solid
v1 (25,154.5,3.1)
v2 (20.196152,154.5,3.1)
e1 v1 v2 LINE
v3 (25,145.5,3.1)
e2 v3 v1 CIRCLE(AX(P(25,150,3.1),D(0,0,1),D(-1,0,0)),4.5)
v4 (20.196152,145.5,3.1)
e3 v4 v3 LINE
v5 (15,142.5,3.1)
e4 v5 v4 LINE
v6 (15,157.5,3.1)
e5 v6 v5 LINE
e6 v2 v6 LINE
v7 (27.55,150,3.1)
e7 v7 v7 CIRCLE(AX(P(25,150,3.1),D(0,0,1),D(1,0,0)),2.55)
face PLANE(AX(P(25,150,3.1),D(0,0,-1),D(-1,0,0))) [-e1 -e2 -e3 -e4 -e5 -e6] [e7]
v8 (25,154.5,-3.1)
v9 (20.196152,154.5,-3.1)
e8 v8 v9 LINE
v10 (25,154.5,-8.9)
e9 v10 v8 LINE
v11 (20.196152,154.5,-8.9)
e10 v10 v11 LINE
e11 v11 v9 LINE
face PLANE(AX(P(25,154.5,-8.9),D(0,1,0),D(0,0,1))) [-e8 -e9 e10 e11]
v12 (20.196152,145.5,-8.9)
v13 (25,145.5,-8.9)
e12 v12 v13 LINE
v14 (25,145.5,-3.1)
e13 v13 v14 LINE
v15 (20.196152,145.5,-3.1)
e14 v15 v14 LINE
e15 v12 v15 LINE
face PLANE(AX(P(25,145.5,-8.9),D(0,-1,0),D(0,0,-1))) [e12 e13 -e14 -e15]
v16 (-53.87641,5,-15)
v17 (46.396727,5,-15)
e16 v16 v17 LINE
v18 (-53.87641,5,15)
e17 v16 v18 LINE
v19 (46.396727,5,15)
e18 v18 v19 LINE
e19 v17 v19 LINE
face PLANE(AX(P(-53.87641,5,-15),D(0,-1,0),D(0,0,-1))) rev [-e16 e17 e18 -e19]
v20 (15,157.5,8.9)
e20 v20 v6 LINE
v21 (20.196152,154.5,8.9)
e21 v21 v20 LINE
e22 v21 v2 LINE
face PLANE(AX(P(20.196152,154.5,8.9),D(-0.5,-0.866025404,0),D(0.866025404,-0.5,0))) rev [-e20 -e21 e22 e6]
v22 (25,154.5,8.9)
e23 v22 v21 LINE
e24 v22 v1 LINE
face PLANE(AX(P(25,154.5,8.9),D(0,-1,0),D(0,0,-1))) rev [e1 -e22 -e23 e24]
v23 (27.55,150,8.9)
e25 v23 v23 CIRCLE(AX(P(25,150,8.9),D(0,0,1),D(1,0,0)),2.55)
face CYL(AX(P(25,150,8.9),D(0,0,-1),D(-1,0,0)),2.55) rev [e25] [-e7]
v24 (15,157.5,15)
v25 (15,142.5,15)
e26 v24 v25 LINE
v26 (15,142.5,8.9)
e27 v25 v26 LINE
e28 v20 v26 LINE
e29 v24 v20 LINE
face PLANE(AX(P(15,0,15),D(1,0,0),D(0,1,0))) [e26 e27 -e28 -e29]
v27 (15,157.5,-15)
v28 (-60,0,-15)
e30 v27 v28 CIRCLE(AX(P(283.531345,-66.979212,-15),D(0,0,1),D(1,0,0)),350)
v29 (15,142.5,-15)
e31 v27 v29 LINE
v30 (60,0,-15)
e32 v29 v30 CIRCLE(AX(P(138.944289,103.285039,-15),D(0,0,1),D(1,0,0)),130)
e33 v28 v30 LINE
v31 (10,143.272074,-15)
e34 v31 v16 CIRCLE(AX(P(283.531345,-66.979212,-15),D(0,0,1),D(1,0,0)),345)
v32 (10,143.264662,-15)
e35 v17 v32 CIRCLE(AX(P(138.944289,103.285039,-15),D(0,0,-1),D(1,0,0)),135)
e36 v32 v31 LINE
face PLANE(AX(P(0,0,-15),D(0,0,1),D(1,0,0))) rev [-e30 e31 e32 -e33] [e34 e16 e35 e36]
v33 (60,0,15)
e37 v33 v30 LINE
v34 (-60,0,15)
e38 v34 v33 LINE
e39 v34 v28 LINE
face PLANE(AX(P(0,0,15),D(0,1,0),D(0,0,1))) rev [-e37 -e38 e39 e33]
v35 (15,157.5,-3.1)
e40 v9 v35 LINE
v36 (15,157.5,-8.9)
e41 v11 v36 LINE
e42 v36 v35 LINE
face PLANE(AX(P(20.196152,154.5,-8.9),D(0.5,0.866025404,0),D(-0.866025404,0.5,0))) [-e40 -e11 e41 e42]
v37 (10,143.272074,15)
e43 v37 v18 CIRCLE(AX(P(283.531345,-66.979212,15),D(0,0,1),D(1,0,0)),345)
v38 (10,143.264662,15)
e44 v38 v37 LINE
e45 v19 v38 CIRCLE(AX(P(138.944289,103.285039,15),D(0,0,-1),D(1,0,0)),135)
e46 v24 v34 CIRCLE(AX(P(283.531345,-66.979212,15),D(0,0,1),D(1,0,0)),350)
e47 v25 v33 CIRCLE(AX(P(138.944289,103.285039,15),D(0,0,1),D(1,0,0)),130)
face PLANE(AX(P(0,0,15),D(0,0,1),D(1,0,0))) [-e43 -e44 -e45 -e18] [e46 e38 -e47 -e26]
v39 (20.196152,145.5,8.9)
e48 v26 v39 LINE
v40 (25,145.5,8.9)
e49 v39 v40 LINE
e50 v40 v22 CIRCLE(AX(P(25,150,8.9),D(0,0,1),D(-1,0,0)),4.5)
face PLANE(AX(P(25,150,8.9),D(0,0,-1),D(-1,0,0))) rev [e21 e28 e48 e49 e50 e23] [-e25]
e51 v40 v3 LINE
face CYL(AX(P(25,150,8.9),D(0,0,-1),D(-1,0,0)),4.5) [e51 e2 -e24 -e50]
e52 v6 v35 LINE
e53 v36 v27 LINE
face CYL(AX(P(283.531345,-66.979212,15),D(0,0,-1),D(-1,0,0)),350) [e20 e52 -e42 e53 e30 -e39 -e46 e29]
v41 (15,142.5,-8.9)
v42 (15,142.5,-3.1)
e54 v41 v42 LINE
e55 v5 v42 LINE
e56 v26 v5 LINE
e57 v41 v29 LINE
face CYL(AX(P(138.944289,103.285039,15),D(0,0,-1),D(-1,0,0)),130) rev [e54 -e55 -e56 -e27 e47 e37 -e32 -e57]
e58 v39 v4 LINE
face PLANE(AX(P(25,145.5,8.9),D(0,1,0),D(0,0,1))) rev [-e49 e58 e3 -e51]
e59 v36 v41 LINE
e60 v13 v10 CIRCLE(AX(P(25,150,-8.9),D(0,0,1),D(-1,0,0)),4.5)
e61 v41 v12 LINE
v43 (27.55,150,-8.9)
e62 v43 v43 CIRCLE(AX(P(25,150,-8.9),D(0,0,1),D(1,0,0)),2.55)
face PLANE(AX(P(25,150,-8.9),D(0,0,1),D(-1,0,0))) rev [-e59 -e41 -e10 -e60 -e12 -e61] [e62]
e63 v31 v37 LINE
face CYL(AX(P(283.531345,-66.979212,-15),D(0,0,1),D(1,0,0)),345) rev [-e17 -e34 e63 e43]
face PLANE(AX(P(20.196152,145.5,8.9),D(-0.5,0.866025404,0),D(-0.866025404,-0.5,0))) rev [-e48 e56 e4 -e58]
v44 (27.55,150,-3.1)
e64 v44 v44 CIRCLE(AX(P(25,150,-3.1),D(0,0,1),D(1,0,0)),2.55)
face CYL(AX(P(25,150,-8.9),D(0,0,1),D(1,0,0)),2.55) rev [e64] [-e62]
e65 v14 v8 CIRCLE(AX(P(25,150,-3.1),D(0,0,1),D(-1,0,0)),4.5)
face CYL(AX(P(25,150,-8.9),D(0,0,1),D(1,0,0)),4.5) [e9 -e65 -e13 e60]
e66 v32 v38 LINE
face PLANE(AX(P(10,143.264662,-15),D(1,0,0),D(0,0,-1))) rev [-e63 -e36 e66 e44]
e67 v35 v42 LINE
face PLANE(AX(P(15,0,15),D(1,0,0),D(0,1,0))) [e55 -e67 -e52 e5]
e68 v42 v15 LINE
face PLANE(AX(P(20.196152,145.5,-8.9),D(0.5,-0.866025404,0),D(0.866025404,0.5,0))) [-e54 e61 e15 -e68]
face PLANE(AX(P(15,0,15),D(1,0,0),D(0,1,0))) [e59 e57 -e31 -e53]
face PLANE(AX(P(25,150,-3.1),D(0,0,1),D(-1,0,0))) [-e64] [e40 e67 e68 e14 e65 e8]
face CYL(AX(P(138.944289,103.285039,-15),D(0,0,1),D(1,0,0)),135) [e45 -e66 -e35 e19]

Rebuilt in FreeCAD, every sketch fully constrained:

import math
import FreeCAD as App
import Part
import Sketcher
from FreeCAD import Vector
Q = App.Units.Quantity

doc = App.newDocument("Part")
body = doc.addObject("PartDesign::Body", "Body")

# Sketch on XY plane
sketch1 = doc.addObject("Sketcher::SketchObject", "Sketch")
body.addObject(sketch1)
sketch1.AttachmentSupport = (doc.XY_Plane, [""])
sketch1.MapMode = "FlatFace"
sketch1.addGeometry(Part.LineSegment(Vector(-60, 0, 0), Vector(60, 0, 0)), False)
sketch1.addGeometry(Part.ArcOfCircle(Part.Circle(Vector(139, 103, 0), Vector(0, 0, 1), 130), math.radians(162), math.radians(233)), False)
sketch1.addGeometry(Part.LineSegment(Vector(15, 142, 0), Vector(15, 158, 0)), False)
sketch1.addGeometry(Part.ArcOfCircle(Part.Circle(Vector(284, -67, 0), Vector(0, 0, 1), 350), math.radians(140), math.radians(169)), False)
sketch1.addConstraint(Sketcher.Constraint("Coincident", 0, 2, 1, 2))
sketch1.addConstraint(Sketcher.Constraint("Coincident", 1, 1, 2, 1))
sketch1.addConstraint(Sketcher.Constraint("Coincident", 2, 2, 3, 1))
sketch1.addConstraint(Sketcher.Constraint("Coincident", 3, 2, 0, 1))
sketch1.addConstraint(Sketcher.Constraint("Horizontal", 0))
sketch1.addConstraint(Sketcher.Constraint("Vertical", 2))
sketch1.addConstraint(Sketcher.Constraint("Symmetric", 0, 2, 3, 2, -1, 1))
sketch1.addConstraint(Sketcher.Constraint("Radius", 1, 130.0))
sketch1.addConstraint(Sketcher.Constraint("Radius", 3, 350.0))
sketch1.addConstraint(Sketcher.Constraint("DistanceX", 0, 1, 0, 2, 120.0))
sketch1.addConstraint(Sketcher.Constraint("DistanceY", 2, 1, 2, 2, 15.0))
sketch1.addConstraint(Sketcher.Constraint("DistanceX", -1, 1, 1, 1, 15.0))
sketch1.addConstraint(Sketcher.Constraint("DistanceY", -1, 1, 1, 1, 142.5))
pad1 = doc.addObject("PartDesign::Pad", "Pad")
body.addObject(pad1)
pad1.Profile = sketch1
pad1.Length = 30
pad1.Midplane = True

# Sketch on XY plane
sketch2 = doc.addObject("Sketcher::SketchObject", "Sketch001")
body.addObject(sketch2)
sketch2.AttachmentSupport = (doc.XY_Plane, [""])
sketch2.MapMode = "FlatFace"
sketch2.AttachmentOffset = App.Placement(Vector(0, 0, 15), App.Rotation())
sketch2.addGeometry(Part.LineSegment(Vector(10, 143.265, 0), Vector(10, 143.272, 0)), False)
sketch2.addGeometry(Part.ArcOfCircle(Part.Circle(Vector(283.531, -66.979, 0), Vector(0, 0, 1), 345), math.radians(142), math.radians(168)), False)
sketch2.addGeometry(Part.LineSegment(Vector(-53.876, 5, 0), Vector(46.397, 5, 0)), False)
sketch2.addGeometry(Part.ArcOfCircle(Part.Circle(Vector(138.944, 103.285, 0), Vector(0, 0, 1), 135), math.radians(163), math.radians(227)), False)
sketch2.addConstraint(Sketcher.Constraint("Coincident", 0, 2, 1, 1))
sketch2.addConstraint(Sketcher.Constraint("Coincident", 1, 2, 2, 1))
sketch2.addConstraint(Sketcher.Constraint("Coincident", 2, 2, 3, 2))
sketch2.addConstraint(Sketcher.Constraint("Coincident", 3, 1, 0, 1))
sketch2.addConstraint(Sketcher.Constraint("Vertical", 0))
sketch2.addConstraint(Sketcher.Constraint("Horizontal", 2))
sketch2.addConstraint(Sketcher.Constraint("Radius", 1, 345.0))
sketch2.addConstraint(Sketcher.Constraint("Radius", 3, 135.0))
sketch2.addConstraint(Sketcher.Constraint("DistanceX", -1, 1, 0, 2, 10.0))
sketch2.addConstraint(Sketcher.Constraint("DistanceY", -1, 1, 2, 2, 5.0))
sketch2.addConstraint(Sketcher.Constraint("DistanceY", 0, 1, 0, 2, 0.007412))
sketch2.addConstraint(Sketcher.Constraint("DistanceX", 1, 2, 3, 3, 192.820699))
sketch2.addConstraint(Sketcher.Constraint("DistanceX", 2, 1, 2, 2, 100.273137))
sketch2.addConstraint(Sketcher.Constraint("DistanceX", -1, 1, 3, 3, 138.944289))
pocket1 = doc.addObject("PartDesign::Pocket", "Pocket")
body.addObject(pocket1)
pocket1.Profile = sketch2
pocket1.Type = "ThroughAll"

# Sketch on XY plane
sketch3 = doc.addObject("Sketcher::SketchObject", "Sketch002")
body.addObject(sketch3)
sketch3.AttachmentSupport = (doc.XY_Plane, [""])
sketch3.MapMode = "FlatFace"
sketch3.AttachmentOffset = App.Placement(Vector(0, 0, 3.1), App.Rotation())
sketch3.addGeometry(Part.LineSegment(Vector(20.2, 145.5, 0), Vector(25, 145.5, 0)), False)
sketch3.addGeometry(Part.ArcOfCircle(Part.Circle(Vector(25, 150, 0), Vector(0, 0, 1), 4.5), math.radians(-90), math.radians(90)), False)
sketch3.addGeometry(Part.LineSegment(Vector(25, 154.5, 0), Vector(20.2, 154.5, 0)), False)
sketch3.addGeometry(Part.LineSegment(Vector(20.2, 154.5, 0), Vector(15, 157.5, 0)), False)
sketch3.addGeometry(Part.LineSegment(Vector(15, 157.5, 0), Vector(15, 142.5, 0)), False)
sketch3.addGeometry(Part.LineSegment(Vector(15, 142.5, 0), Vector(20.2, 145.5, 0)), False)
sketch3.addGeometry(Part.Circle(Vector(25, 150, 0), Vector(0, 0, 1), 2.5), False)
sketch3.addConstraint(Sketcher.Constraint("Tangent", 0, 2, 1, 1))
sketch3.addConstraint(Sketcher.Constraint("Tangent", 1, 2, 2, 1))
sketch3.addConstraint(Sketcher.Constraint("Coincident", 2, 2, 3, 1))
sketch3.addConstraint(Sketcher.Constraint("Coincident", 3, 2, 4, 1))
sketch3.addConstraint(Sketcher.Constraint("Coincident", 4, 2, 5, 1))
sketch3.addConstraint(Sketcher.Constraint("Coincident", 5, 2, 0, 1))
sketch3.addConstraint(Sketcher.Constraint("Horizontal", 0))
sketch3.addConstraint(Sketcher.Constraint("Horizontal", 2))
sketch3.addConstraint(Sketcher.Constraint("Vertical", 4))
sketch3.addConstraint(Sketcher.Constraint("Coincident", 6, 3, 1, 3))
sketch3.addConstraint(Sketcher.Constraint("Vertical", 2, 2, 5, 2))
sketch3.addConstraint(Sketcher.Constraint("Equal", 3, 5))
sketch3.addConstraint(Sketcher.Constraint("Diameter", 6, 5.1))
sketch3.addConstraint(Sketcher.Constraint("Radius", 1, 4.5))
sketch3.addConstraint(Sketcher.Constraint("DistanceY", 4, 2, 4, 1, 15.0))
sketch3.addConstraint(Sketcher.Constraint("Angle", 3, Q("150 deg")))
sketch3.addConstraint(Sketcher.Constraint("DistanceX", -1, 1, 1, 3, 25.0))
sketch3.addConstraint(Sketcher.Constraint("DistanceY", -1, 1, 1, 3, 150.0))
sketch3.addConstraint(Sketcher.Constraint("DistanceX", -1, 1, 3, 2, 15.0))
pad2 = doc.addObject("PartDesign::Pad", "Pad001")
body.addObject(pad2)
pad2.Profile = sketch3
pad2.Length = 5.8
doc.recompute()

mirrored = doc.addObject("PartDesign::Mirrored", "Mirrored")
body.addObject(mirrored)
mirrored.Originals = [pad2]
mirrored.MirrorPlane = (doc.XY_Plane, [""])
body.Tip = mirrored

doc.recompute()
